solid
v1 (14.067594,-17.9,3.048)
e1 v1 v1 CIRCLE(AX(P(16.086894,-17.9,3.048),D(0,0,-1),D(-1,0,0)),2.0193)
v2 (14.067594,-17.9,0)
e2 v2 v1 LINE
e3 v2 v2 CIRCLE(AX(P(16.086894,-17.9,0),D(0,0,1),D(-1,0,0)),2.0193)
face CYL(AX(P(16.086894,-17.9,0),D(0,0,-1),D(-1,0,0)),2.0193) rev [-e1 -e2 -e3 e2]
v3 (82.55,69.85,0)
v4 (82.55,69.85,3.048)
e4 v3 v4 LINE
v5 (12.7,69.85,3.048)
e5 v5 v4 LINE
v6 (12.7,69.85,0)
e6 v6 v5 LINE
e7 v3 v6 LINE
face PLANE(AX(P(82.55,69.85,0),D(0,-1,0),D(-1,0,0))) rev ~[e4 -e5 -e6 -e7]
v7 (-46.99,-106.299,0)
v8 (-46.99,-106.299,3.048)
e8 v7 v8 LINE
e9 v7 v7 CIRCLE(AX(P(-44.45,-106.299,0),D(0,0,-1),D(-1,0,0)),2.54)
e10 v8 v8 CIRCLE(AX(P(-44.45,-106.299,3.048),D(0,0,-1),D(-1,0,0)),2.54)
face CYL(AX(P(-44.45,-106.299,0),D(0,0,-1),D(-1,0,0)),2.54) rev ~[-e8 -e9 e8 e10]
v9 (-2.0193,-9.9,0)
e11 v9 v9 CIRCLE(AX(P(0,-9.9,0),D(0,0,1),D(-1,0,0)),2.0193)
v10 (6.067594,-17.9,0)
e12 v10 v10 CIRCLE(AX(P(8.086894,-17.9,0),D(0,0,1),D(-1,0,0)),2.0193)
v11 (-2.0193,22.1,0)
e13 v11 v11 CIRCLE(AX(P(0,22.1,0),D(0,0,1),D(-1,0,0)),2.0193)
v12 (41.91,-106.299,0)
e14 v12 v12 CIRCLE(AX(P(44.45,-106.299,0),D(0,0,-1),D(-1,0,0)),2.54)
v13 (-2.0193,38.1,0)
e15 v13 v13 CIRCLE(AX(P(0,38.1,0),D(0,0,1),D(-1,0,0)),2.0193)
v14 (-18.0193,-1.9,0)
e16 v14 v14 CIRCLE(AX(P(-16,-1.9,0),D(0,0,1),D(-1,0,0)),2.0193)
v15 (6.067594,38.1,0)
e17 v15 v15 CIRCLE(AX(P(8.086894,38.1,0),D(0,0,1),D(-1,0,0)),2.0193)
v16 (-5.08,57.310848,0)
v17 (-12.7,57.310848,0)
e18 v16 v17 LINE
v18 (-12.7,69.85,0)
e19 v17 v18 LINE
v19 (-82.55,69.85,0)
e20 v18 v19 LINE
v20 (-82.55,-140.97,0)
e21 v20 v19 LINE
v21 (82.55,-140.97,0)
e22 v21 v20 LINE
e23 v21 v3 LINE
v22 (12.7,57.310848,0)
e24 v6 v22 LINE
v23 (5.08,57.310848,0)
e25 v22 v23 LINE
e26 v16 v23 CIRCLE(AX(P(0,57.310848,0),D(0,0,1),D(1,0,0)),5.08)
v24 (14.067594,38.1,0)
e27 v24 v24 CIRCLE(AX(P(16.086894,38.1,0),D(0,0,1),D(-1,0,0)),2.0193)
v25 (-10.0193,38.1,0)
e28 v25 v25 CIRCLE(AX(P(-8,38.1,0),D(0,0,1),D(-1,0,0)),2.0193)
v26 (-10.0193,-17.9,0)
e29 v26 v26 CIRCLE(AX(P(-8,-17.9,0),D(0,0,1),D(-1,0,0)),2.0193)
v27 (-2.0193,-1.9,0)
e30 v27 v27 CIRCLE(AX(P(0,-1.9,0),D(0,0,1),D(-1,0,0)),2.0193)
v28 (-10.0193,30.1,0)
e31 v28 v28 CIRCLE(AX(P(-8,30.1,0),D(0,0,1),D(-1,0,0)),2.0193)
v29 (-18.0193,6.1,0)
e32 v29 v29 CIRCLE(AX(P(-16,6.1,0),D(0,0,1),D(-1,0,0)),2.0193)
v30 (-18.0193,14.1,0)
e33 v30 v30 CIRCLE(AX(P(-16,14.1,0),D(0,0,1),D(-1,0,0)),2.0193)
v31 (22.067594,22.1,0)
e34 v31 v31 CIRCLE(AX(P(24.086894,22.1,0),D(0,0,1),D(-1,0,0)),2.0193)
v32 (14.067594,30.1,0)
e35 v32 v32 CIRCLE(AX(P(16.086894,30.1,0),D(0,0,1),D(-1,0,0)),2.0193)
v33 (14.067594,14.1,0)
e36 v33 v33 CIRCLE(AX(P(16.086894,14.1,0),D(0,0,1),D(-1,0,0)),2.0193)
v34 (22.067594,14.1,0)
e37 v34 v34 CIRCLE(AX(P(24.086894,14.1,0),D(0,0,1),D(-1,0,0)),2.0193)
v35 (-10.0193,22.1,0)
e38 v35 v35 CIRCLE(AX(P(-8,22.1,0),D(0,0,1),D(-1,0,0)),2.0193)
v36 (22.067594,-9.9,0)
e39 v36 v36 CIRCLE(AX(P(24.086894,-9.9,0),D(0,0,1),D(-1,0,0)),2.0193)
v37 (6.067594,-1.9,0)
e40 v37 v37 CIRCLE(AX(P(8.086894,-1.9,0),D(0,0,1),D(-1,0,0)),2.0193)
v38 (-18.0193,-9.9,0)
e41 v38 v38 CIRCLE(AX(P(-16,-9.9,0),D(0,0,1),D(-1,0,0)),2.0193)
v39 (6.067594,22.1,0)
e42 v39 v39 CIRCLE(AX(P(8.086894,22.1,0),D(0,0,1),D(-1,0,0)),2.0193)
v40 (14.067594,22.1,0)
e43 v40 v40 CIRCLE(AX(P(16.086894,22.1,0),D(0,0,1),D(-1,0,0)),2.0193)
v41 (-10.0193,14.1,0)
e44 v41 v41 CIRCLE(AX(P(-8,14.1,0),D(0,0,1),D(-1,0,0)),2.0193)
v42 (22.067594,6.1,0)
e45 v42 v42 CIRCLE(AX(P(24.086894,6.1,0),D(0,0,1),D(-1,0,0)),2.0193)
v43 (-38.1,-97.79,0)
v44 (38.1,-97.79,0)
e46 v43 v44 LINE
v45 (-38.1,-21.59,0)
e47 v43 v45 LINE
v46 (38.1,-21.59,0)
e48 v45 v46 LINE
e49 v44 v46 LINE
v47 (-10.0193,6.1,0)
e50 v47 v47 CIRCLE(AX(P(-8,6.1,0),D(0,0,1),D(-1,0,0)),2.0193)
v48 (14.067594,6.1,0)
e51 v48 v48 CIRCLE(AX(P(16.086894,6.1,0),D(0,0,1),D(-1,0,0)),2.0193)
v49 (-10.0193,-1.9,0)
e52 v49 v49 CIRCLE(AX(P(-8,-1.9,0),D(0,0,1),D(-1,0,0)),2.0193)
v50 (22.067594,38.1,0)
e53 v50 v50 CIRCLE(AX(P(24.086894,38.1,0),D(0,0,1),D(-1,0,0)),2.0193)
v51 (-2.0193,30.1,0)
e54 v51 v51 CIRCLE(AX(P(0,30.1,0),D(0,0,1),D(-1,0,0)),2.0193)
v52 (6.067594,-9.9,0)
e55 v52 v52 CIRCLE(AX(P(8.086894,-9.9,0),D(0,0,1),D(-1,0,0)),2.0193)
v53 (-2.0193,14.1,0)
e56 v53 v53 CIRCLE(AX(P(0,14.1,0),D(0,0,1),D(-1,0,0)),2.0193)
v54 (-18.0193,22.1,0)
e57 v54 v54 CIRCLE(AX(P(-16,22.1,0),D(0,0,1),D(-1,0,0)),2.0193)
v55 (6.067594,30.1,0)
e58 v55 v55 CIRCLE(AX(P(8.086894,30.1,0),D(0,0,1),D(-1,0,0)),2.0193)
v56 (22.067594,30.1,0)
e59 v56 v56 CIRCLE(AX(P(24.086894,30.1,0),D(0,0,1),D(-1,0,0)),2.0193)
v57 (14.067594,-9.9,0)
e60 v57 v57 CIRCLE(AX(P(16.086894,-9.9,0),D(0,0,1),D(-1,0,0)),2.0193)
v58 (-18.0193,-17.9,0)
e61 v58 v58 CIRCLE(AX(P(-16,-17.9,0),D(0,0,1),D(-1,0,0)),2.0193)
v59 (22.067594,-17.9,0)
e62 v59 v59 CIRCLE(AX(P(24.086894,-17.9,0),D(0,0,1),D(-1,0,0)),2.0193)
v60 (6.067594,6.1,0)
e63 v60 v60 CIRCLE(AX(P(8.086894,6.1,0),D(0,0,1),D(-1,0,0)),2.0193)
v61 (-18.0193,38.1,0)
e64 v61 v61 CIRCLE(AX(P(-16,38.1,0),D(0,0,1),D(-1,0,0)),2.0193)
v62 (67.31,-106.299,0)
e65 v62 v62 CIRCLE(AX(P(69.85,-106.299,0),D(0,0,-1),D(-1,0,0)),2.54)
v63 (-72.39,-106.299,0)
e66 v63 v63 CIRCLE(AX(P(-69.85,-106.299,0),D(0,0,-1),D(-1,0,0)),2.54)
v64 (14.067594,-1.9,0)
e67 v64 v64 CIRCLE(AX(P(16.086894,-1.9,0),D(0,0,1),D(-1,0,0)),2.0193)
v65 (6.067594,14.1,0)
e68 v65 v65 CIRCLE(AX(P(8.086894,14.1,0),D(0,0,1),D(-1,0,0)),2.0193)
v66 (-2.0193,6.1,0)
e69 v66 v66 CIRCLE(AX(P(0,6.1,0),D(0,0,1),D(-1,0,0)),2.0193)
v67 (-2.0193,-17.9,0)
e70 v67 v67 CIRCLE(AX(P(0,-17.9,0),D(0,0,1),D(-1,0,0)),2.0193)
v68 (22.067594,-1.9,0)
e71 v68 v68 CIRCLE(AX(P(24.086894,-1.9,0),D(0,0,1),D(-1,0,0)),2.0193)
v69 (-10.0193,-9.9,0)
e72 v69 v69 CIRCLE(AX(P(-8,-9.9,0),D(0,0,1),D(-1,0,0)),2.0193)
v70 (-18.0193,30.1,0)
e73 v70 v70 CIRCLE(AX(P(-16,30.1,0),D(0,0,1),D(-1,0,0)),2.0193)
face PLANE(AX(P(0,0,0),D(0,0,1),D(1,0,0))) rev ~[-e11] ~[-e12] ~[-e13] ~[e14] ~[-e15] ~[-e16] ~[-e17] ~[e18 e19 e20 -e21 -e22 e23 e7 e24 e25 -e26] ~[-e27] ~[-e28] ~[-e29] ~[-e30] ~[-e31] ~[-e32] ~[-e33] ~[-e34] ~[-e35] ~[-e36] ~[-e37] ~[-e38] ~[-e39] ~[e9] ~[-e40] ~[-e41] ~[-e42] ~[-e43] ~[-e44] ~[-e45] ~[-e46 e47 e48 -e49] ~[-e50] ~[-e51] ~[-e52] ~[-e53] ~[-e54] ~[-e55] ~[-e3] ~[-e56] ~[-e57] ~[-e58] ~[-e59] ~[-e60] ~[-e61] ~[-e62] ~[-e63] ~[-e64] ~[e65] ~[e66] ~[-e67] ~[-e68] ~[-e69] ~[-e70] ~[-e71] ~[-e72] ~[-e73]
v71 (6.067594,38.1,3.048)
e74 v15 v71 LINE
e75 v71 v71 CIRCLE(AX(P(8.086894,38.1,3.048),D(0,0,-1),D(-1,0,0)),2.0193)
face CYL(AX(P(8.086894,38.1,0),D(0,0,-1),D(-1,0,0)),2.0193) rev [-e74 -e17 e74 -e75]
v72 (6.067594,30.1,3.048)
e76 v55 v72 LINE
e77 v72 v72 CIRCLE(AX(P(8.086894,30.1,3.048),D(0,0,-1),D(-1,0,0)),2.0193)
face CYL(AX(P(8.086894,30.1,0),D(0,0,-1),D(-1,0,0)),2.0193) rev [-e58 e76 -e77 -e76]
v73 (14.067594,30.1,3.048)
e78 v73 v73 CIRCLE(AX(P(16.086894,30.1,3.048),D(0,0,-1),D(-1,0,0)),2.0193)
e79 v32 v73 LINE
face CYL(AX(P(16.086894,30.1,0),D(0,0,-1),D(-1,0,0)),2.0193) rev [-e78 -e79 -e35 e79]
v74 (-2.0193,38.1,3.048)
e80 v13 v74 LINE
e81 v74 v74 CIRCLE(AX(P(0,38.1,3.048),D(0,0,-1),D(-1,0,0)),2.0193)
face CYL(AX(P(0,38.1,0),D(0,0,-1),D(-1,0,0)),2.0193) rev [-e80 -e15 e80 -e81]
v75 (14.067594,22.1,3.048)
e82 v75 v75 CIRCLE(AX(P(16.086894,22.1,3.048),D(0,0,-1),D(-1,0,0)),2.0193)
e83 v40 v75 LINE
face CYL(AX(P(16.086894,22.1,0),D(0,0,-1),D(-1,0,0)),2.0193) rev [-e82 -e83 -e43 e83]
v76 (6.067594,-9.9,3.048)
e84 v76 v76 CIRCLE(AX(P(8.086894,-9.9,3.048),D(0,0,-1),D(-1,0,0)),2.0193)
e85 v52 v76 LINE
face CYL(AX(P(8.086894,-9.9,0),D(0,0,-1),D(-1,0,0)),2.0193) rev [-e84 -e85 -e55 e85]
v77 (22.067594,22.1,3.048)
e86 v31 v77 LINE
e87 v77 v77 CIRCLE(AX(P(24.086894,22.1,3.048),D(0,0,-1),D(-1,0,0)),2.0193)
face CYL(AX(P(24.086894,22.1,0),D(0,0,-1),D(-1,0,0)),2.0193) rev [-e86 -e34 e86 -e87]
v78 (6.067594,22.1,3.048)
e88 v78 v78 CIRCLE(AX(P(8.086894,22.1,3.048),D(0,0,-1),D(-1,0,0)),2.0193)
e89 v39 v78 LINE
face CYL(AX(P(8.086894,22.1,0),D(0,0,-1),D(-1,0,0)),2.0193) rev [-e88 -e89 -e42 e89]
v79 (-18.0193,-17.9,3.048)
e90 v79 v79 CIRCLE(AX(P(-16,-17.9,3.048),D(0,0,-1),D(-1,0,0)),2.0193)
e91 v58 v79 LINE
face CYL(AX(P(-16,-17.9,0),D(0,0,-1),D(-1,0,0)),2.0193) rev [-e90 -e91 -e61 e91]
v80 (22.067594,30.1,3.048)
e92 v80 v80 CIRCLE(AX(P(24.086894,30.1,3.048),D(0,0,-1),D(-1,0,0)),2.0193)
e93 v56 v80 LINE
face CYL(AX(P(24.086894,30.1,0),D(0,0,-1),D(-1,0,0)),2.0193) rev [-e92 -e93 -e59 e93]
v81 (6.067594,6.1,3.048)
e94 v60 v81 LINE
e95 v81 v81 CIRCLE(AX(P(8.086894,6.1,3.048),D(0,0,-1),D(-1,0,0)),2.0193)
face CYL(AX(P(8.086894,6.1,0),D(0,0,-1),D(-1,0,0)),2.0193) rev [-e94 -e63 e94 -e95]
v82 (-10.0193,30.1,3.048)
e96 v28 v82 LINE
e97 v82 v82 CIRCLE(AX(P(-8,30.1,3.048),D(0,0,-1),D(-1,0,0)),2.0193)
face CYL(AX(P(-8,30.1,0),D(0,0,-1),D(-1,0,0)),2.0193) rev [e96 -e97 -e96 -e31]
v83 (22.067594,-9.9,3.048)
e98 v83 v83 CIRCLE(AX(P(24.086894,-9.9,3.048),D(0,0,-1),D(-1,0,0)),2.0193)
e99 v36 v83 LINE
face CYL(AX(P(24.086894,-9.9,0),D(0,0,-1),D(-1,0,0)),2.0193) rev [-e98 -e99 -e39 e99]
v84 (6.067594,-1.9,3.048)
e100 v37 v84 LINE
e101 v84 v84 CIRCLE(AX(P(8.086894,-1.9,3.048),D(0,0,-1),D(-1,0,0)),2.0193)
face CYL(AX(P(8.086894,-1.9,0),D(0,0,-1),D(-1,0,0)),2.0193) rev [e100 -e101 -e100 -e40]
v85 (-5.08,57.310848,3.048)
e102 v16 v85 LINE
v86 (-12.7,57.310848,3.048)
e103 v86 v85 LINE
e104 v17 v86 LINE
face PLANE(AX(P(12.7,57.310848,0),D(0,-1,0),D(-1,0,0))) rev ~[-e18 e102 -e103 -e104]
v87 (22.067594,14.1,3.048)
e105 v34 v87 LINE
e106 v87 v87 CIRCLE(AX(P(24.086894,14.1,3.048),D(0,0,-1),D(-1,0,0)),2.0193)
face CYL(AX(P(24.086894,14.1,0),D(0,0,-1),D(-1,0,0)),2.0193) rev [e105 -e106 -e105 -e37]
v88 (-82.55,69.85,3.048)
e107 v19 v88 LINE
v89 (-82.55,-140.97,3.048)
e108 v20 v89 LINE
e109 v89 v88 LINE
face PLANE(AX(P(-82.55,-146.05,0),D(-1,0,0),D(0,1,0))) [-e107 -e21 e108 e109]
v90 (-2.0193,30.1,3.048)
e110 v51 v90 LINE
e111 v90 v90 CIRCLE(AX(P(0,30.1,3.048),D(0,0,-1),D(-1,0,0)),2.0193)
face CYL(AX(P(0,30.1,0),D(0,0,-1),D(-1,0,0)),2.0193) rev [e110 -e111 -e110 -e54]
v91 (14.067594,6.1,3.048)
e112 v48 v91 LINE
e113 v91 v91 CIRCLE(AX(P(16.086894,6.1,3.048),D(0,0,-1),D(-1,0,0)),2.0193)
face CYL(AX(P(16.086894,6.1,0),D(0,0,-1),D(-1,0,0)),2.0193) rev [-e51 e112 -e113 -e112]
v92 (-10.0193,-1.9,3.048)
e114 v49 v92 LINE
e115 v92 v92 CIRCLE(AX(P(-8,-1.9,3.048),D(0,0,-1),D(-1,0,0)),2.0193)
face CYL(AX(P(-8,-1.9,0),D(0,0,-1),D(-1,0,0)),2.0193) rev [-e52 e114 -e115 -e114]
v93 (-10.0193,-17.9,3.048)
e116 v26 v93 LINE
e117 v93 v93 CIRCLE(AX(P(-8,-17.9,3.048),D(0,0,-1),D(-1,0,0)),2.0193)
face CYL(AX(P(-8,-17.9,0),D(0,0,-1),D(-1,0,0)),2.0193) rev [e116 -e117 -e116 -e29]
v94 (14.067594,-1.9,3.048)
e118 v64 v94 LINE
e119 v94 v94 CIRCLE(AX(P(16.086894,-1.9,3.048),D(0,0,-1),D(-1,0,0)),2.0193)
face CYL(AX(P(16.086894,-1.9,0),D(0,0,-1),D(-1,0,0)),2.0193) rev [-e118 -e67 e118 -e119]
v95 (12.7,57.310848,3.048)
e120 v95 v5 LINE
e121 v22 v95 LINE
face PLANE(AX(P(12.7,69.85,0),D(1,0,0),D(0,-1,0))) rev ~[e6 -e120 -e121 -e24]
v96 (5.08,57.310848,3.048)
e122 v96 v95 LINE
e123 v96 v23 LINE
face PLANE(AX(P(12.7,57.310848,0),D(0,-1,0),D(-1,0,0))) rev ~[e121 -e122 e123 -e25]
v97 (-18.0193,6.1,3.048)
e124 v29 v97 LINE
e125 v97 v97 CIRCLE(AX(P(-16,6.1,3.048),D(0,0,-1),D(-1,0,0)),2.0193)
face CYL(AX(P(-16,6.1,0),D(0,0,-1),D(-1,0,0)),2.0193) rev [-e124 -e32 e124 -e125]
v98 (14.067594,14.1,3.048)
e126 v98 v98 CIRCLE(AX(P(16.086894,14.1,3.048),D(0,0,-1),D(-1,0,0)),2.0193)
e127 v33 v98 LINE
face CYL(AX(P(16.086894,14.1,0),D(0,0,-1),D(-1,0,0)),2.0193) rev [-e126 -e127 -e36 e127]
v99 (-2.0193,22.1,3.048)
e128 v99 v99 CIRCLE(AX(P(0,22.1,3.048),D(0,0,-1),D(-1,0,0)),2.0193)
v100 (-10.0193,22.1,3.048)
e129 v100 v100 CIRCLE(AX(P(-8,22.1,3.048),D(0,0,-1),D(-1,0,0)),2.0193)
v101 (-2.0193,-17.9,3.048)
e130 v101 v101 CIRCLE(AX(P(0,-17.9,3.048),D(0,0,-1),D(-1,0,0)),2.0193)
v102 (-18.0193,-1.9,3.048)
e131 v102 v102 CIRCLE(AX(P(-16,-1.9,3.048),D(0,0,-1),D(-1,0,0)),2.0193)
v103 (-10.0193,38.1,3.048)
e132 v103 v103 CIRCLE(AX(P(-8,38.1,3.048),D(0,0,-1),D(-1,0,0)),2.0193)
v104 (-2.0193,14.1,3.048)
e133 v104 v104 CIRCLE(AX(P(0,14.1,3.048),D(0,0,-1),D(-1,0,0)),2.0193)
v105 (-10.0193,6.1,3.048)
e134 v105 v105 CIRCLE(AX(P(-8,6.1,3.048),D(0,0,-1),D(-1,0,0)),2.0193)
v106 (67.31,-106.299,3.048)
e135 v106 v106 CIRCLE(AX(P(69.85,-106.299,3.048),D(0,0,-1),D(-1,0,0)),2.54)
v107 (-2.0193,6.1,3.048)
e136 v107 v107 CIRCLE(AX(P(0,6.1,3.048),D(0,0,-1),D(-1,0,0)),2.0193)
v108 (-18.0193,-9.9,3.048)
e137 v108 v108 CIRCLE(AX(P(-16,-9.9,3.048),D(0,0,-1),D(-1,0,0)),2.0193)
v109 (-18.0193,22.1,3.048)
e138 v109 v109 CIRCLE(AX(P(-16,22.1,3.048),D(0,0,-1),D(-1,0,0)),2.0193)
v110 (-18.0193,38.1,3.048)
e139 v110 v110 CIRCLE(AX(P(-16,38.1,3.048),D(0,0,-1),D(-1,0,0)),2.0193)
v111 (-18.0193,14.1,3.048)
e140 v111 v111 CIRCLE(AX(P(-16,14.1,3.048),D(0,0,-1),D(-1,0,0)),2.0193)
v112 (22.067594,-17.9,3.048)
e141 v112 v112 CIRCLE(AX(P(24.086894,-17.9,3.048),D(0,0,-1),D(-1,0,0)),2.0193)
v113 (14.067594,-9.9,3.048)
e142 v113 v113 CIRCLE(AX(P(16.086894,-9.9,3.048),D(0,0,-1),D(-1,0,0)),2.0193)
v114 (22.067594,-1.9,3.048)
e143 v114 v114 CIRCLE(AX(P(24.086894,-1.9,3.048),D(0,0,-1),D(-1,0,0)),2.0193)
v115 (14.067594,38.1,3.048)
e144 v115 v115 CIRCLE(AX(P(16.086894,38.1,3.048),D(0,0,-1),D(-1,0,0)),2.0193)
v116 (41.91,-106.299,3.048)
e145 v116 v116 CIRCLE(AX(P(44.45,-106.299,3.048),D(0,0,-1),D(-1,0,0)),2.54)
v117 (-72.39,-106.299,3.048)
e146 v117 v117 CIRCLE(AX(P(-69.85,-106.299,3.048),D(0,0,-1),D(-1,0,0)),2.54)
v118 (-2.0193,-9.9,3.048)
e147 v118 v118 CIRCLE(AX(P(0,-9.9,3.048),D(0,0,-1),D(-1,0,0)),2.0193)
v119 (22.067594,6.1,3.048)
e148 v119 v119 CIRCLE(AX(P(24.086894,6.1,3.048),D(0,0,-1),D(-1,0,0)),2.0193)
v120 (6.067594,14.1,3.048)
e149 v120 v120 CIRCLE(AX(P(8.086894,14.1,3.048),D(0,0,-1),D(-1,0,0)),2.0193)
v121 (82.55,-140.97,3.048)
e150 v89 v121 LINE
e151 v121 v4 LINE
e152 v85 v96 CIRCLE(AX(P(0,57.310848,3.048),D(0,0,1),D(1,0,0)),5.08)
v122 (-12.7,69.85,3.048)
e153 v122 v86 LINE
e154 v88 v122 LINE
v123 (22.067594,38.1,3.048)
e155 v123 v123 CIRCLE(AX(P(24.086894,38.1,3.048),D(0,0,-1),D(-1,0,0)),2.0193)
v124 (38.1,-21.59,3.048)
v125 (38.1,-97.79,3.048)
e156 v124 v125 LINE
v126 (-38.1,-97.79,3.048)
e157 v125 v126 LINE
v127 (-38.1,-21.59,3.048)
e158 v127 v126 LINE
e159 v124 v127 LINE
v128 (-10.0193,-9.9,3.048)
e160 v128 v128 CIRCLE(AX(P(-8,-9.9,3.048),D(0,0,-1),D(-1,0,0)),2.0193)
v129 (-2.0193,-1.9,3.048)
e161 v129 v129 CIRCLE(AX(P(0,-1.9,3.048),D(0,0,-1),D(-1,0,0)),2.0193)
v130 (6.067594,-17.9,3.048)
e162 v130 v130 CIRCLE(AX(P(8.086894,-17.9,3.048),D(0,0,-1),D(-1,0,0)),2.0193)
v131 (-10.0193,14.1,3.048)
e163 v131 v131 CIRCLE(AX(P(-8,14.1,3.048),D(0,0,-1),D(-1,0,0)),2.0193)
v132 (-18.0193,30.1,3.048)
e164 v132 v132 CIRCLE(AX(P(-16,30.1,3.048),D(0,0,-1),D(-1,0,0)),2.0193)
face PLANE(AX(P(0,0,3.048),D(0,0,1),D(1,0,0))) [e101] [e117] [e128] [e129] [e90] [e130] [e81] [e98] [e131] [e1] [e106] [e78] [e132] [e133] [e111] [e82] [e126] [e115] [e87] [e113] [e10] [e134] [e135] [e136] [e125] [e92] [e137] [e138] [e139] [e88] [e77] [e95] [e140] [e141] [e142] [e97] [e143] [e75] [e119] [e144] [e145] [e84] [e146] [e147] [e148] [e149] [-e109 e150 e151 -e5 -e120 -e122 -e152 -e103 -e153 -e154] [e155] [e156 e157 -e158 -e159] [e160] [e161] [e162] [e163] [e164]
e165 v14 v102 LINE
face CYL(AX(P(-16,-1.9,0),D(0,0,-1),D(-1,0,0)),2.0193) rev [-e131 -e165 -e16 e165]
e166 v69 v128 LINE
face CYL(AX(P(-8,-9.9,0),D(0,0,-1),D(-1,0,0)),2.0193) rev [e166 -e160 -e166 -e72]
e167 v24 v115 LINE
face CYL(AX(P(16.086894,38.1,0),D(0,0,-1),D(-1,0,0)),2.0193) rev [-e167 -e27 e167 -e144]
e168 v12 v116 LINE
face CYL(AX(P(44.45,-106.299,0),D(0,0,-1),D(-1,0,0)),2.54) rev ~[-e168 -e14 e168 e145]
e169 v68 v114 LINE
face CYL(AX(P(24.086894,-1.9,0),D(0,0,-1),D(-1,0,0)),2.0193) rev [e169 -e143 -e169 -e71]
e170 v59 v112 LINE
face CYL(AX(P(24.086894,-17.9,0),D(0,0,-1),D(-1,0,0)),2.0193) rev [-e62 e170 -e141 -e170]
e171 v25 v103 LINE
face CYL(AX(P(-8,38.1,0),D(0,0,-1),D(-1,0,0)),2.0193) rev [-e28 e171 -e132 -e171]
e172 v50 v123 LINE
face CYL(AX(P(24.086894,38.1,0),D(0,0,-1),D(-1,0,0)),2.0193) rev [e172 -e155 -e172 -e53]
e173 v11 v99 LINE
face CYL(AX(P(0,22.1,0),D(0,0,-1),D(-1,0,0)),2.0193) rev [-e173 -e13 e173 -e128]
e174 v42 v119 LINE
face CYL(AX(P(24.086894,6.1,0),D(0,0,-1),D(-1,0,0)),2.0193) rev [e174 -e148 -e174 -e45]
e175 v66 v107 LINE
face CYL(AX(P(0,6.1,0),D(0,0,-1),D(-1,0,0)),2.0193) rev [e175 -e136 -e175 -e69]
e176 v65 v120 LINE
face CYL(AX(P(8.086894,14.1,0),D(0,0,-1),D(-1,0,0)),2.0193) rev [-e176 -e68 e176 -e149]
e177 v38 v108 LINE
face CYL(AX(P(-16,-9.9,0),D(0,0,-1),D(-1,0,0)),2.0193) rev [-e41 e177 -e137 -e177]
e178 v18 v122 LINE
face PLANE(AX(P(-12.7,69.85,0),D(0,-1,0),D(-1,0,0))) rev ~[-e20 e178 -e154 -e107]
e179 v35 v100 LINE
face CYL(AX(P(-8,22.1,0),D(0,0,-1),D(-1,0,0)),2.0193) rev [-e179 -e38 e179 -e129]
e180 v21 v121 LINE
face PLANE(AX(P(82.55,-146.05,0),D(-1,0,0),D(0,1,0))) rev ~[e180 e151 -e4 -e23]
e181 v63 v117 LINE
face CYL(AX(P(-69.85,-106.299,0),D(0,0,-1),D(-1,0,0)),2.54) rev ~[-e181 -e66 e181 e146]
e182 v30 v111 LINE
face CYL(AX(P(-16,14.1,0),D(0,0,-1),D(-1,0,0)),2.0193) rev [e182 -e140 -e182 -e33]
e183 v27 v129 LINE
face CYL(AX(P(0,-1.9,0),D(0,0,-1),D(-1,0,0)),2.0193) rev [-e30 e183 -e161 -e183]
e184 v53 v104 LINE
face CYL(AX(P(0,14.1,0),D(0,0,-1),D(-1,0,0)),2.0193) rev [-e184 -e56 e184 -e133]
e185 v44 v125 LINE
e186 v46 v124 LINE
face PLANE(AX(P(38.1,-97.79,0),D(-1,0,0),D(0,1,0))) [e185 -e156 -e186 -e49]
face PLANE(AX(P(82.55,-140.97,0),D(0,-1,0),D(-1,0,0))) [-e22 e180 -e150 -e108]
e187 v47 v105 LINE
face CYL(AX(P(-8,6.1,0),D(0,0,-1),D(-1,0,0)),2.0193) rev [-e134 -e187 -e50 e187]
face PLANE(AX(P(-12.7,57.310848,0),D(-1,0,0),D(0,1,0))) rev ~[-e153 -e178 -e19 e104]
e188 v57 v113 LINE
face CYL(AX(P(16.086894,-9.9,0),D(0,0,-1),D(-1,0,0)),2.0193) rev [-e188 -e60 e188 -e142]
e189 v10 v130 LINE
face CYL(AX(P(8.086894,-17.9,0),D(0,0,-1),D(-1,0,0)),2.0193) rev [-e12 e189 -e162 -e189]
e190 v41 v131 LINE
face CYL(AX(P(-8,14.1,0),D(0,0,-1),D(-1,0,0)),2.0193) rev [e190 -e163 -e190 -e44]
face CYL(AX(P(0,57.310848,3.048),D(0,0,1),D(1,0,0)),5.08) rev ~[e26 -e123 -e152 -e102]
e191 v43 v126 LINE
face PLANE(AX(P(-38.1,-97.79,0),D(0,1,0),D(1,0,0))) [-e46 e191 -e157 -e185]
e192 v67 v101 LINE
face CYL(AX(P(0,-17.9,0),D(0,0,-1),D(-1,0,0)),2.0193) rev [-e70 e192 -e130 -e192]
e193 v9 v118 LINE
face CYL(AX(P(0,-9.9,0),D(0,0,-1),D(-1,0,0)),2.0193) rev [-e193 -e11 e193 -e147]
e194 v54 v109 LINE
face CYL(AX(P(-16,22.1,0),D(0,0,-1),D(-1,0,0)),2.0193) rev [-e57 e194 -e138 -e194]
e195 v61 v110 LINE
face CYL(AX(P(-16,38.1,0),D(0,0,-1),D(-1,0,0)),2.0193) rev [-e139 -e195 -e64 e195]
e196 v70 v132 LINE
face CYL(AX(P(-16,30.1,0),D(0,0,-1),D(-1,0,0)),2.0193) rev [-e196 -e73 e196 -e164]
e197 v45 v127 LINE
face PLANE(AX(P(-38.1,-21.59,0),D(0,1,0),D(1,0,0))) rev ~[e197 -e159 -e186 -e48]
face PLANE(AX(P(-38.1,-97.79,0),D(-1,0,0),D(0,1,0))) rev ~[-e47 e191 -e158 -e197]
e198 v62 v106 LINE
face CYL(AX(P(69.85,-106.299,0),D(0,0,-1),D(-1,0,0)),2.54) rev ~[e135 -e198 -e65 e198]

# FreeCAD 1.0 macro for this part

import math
import FreeCAD as App
import Part
import Sketcher
Q = App.Units.Quantity


def add_polygon(sketch, points):
    """Adds a closed chain of lines whose ends are joined by coincident constraints."""
    first, n = sketch.GeometryCount, len(points)
    for a, b in zip(points, points[1:] + points[:1]):
        sketch.addGeometry(Part.LineSegment(App.Vector(*a, 0), App.Vector(*b, 0)), False)
    for i in range(n):
        sketch.addConstraint(Sketcher.Constraint("Coincident", first + i, 2, first + (i + 1) % n, 1))

doc = App.newDocument("Part")
params = doc.addObject("Spreadsheet::Sheet", "Params")
for row, (alias, value) in enumerate([
    ("sketch1_width", "6.5 in"),
    ("sketch1_height", "11.5 in"),
    ("pad1_length", "0.12 in"),
    ("sketch2_width", "3 in"),
    ("sketch2_diameter", "0.159 in"),
    ("sketch3_width", "1 in"),
    ("sketch3_height", "3 in"),
    ("sketch3_width2", "6.5 in"),
    ("sketch4_diameter", "0.2 in"),
    ("sketch5_width", "6.5 in"),
    ("sketch5_height", "0.2 in"),
    ("sketch6_diameter", "0.4 in"),
], start=1):
    params.set(f"A{row}", alias)
    params.set(f"B{row}", "=" + value)
    params.setAlias(f"B{row}", alias)

body = doc.addObject("PartDesign::Body", "Body")

# Sketch on XY plane
sketch1 = body.newObject("Sketcher::SketchObject", "Sketch")
sketch1.AttachmentSupport = (doc.getObject("XY_Plane"), [""])
sketch1.MapMode = "FlatFace"
add_polygon(sketch1, [(-82.55, 146.05), (-82.55, -146.05), (82.55, -146.05), (82.55, 146.05)])  # lines 0-3
sketch1.addConstraint(Sketcher.Constraint("Vertical", 0))
sketch1.addConstraint(Sketcher.Constraint("Horizontal", 1))
sketch1.addConstraint(Sketcher.Constraint("Vertical", 2))
sketch1.addConstraint(Sketcher.Constraint("Horizontal", 3))
sketch1.addConstraint(Sketcher.Constraint("Symmetric", 0, 2, 2, 2, -1, 1))
sketch1.addConstraint(Sketcher.Constraint("DistanceX", 1, 1, 1, 2, Q("6.5 in")))
sketch1.addConstraint(Sketcher.Constraint("DistanceY", 0, 2, 0, 1, Q("11.5 in")))
sketch1.setExpression("Constraints[9]", "Params.sketch1_width")
sketch1.setExpression("Constraints[10]", "Params.sketch1_height")
pad1 = body.newObject("PartDesign::Pad", "Pad")
pad1.Profile = sketch1
pad1.setExpression("Length", "Params.pad1_length")

# Sketch on XY plane
sketch2 = body.newObject("Sketcher::SketchObject", "Sketch001")
sketch2.AttachmentSupport = (doc.getObject("XY_Plane"), [""])
sketch2.MapMode = "FlatFace"
sketch2.addGeometry(Part.ArcOfCircle(Part.Circle(App.Vector(0, 92.71, 0), App.Vector(0, 0, 1), 10.7315), math.radians(-41.099767), math.radians(41.099767)), False)  # 0
sketch2.addGeometry(Part.LineSegment(App.Vector(8.086894, 99.76459, 0), App.Vector(8.086894, 109.0549, 0)), False)  # 1
sketch2.addGeometry(Part.LineSegment(App.Vector(8.086894, 109.0549, 0), App.Vector(-8.086894, 109.0549, 0)), False)  # 2
sketch2.addGeometry(Part.LineSegment(App.Vector(-8.086894, 109.0549, 0), App.Vector(-8.086894, 99.76459, 0)), False)  # 3
sketch2.addGeometry(Part.ArcOfCircle(Part.Circle(App.Vector(0, 92.71, 0), App.Vector(0, 0, 1), 10.7315), math.radians(138.900233), math.radians(221.099767)), False)  # 4
sketch2.addGeometry(Part.LineSegment(App.Vector(-8.086894, 85.65541, 0), App.Vector(-8.086894, 76.3651, 0)), False)  # 5
sketch2.addGeometry(Part.LineSegment(App.Vector(-8.086894, 76.3651, 0), App.Vector(8.086894, 76.3651, 0)), False)  # 6
sketch2.addGeometry(Part.LineSegment(App.Vector(8.086894, 76.3651, 0), App.Vector(8.086894, 85.65541, 0)), False)  # 7
sketch2.addGeometry(Part.Circle(App.Vector(0, 38.1, 0), App.Vector(0, 0, 1), 2.0193), False)  # 8
sketch2.addGeometry(Part.Circle(App.Vector(0, 30.1, 0), App.Vector(0, 0, 1), 2.0193), False)  # 9
sketch2.addGeometry(Part.Circle(App.Vector(0, 22.1, 0), App.Vector(0, 0, 1), 2.0193), False)  # 10
sketch2.addGeometry(Part.Circle(App.Vector(0, 14.1, 0), App.Vector(0, 0, 1), 2.0193), False)  # 11
sketch2.addGeometry(Part.Circle(App.Vector(0, 6.1, 0), App.Vector(0, 0, 1), 2.0193), False)  # 12
sketch2.addGeometry(Part.Circle(App.Vector(0, -1.9, 0), App.Vector(0, 0, 1), 2.0193), False)  # 13
sketch2.addGeometry(Part.Circle(App.Vector(0, -9.9, 0), App.Vector(0, 0, 1), 2.0193), False)  # 14
sketch2.addGeometry(Part.Circle(App.Vector(0, -17.9, 0), App.Vector(0, 0, 1), 2.0193), False)  # 15
sketch2.addGeometry(Part.Circle(App.Vector(-8, 38.1, 0), App.Vector(0, 0, 1), 2.0193), False)  # 16
sketch2.addGeometry(Part.Circle(App.Vector(-16, 38.1, 0), App.Vector(0, 0, 1), 2.0193), False)  # 17
sketch2.addGeometry(Part.Circle(App.Vector(-8, 30.1, 0), App.Vector(0, 0, 1), 2.0193), False)  # 18
sketch2.addGeometry(Part.Circle(App.Vector(-16, 30.1, 0), App.Vector(0, 0, 1), 2.0193), False)  # 19
sketch2.addGeometry(Part.Circle(App.Vector(-8, 22.1, 0), App.Vector(0, 0, 1), 2.0193), False)  # 20
sketch2.addGeometry(Part.Circle(App.Vector(-16, 22.1, 0), App.Vector(0, 0, 1), 2.0193), False)  # 21
sketch2.addGeometry(Part.Circle(App.Vector(-8, 14.1, 0), App.Vector(0, 0, 1), 2.0193), False)  # 22
sketch2.addGeometry(Part.Circle(App.Vector(-16, 14.1, 0), App.Vector(0, 0, 1), 2.0193), False)  # 23
sketch2.addGeometry(Part.Circle(App.Vector(-8, 6.1, 0), App.Vector(0, 0, 1), 2.0193), False)  # 24
sketch2.addGeometry(Part.Circle(App.Vector(-16, 6.1, 0), App.Vector(0, 0, 1), 2.0193), False)  # 25
sketch2.addGeometry(Part.Circle(App.Vector(-8, -1.9, 0), App.Vector(0, 0, 1), 2.0193), False)  # 26
sketch2.addGeometry(Part.Circle(App.Vector(-16, -1.9, 0), App.Vector(0, 0, 1), 2.0193), False)  # 27
sketch2.addGeometry(Part.Circle(App.Vector(-8, -9.9, 0), App.Vector(0, 0, 1), 2.0193), False)  # 28
sketch2.addGeometry(Part.Circle(App.Vector(-16, -9.9, 0), App.Vector(0, 0, 1), 2.0193), False)  # 29
sketch2.addGeometry(Part.Circle(App.Vector(-8, -17.9, 0), App.Vector(0, 0, 1), 2.0193), False)  # 30
sketch2.addGeometry(Part.Circle(App.Vector(-16, -17.9, 0), App.Vector(0, 0, 1), 2.0193), False)  # 31
sketch2.addGeometry(Part.Circle(App.Vector(24.086894, 14.1, 0), App.Vector(0, 0, 1), 2.0193), False)  # 32
sketch2.addGeometry(Part.Circle(App.Vector(8.086894, 14.1, 0), App.Vector(0, 0, 1), 2.0193), False)  # 33
sketch2.addGeometry(Part.Circle(App.Vector(8.086894, -17.9, 0), App.Vector(0, 0, 1), 2.0193), False)  # 34
sketch2.addGeometry(Part.Circle(App.Vector(24.086894, 6.1, 0), App.Vector(0, 0, 1), 2.0193), False)  # 35
sketch2.addGeometry(Part.Circle(App.Vector(16.086894, 6.1, 0), App.Vector(0, 0, 1), 2.0193), False)  # 36
sketch2.addGeometry(Part.Circle(App.Vector(8.086894, -1.9, 0), App.Vector(0, 0, 1), 2.0193), False)  # 37
sketch2.addGeometry(Part.Circle(App.Vector(8.086894, 30.1, 0), App.Vector(0, 0, 1), 2.0193), False)  # 38
sketch2.addGeometry(Part.Circle(App.Vector(24.086894, 22.1, 0), App.Vector(0, 0, 1), 2.0193), False)  # 39
sketch2.addGeometry(Part.Circle(App.Vector(24.086894, -1.9, 0), App.Vector(0, 0, 1), 2.0193), False)  # 40
sketch2.addGeometry(Part.Circle(App.Vector(24.086894, -9.9, 0), App.Vector(0, 0, 1), 2.0193), False)  # 41
sketch2.addGeometry(Part.Circle(App.Vector(8.086894, 6.1, 0), App.Vector(0, 0, 1), 2.0193), False)  # 42
sketch2.addGeometry(Part.Circle(App.Vector(16.086894, 22.1, 0), App.Vector(0, 0, 1), 2.0193), False)  # 43
sketch2.addGeometry(Part.Circle(App.Vector(8.086894, 22.1, 0), App.Vector(0, 0, 1), 2.0193), False)  # 44
sketch2.addGeometry(Part.Circle(App.Vector(8.086894, -9.9, 0), App.Vector(0, 0, 1), 2.0193), False)  # 45
sketch2.addGeometry(Part.Circle(App.Vector(24.086894, -17.9, 0), App.Vector(0, 0, 1), 2.0193), False)  # 46
sketch2.addGeometry(Part.Circle(App.Vector(16.086894, 14.1, 0), App.Vector(0, 0, 1), 2.0193), False)  # 47
sketch2.addGeometry(Part.Circle(App.Vector(16.086894, -17.9, 0), App.Vector(0, 0, 1), 2.0193), False)  # 48
sketch2.addGeometry(Part.Circle(App.Vector(16.086894, 30.1, 0), App.Vector(0, 0, 1), 2.0193), False)  # 49
sketch2.addGeometry(Part.Circle(App.Vector(24.086894, 30.1, 0), App.Vector(0, 0, 1), 2.0193), False)  # 50
sketch2.addGeometry(Part.Circle(App.Vector(16.086894, -9.9, 0), App.Vector(0, 0, 1), 2.0193), False)  # 51
sketch2.addGeometry(Part.Circle(App.Vector(16.086894, -1.9, 0), App.Vector(0, 0, 1), 2.0193), False)  # 52
sketch2.addGeometry(Part.Circle(App.Vector(16.086894, 38.1, 0), App.Vector(0, 0, 1), 2.0193), False)  # 53
sketch2.addGeometry(Part.Circle(App.Vector(8.086894, 38.1, 0), App.Vector(0, 0, 1), 2.0193), False)  # 54
sketch2.addGeometry(Part.Circle(App.Vector(24.086894, 38.1, 0), App.Vector(0, 0, 1), 2.0193), False)  # 55
add_polygon(sketch2, [(-38.1, -21.59), (-38.1, -97.79), (38.1, -97.79), (38.1, -21.59)])  # lines 56-59
sketch2.addConstraint(Sketcher.Constraint("Coincident", 0, 2, 1, 1))
sketch2.addConstraint(Sketcher.Constraint("Coincident", 1, 2, 2, 1))
sketch2.addConstraint(Sketcher.Constraint("Coincident", 2, 2, 3, 1))
sketch2.addConstraint(Sketcher.Constraint("Coincident", 3, 2, 4, 1))
sketch2.addConstraint(Sketcher.Constraint("Coincident", 4, 2, 5, 1))
sketch2.addConstraint(Sketcher.Constraint("Coincident", 5, 2, 6, 1))
sketch2.addConstraint(Sketcher.Constraint("Coincident", 6, 2, 7, 1))
sketch2.addConstraint(Sketcher.Constraint("Coincident", 7, 2, 0, 1))
sketch2.addConstraint(Sketcher.Constraint("Vertical", 1))
sketch2.addConstraint(Sketcher.Constraint("Horizontal", 2))
sketch2.addConstraint(Sketcher.Constraint("Vertical", 3))
sketch2.addConstraint(Sketcher.Constraint("Vertical", 5))
sketch2.addConstraint(Sketcher.Constraint("Horizontal", 6))
sketch2.addConstraint(Sketcher.Constraint("Vertical", 7))
sketch2.addConstraint(Sketcher.Constraint("Vertical", 56))
sketch2.addConstraint(Sketcher.Constraint("Horizontal", 57))
sketch2.addConstraint(Sketcher.Constraint("Vertical", 58))
sketch2.addConstraint(Sketcher.Constraint("Horizontal", 59))
sketch2.addConstraint(Sketcher.Constraint("Coincident", 4, 3, 0, 3))
sketch2.addConstraint(Sketcher.Constraint("Equal", 0, 4))
sketch2.addConstraint(Sketcher.Constraint("Equal", 8, 9))
sketch2.addConstraint(Sketcher.Constraint("Equal", 9, 10))
sketch2.addConstraint(Sketcher.Constraint("Equal", 10, 11))
sketch2.addConstraint(Sketcher.Constraint("Equal", 11, 12))
sketch2.addConstraint(Sketcher.Constraint("Equal", 12, 13))
sketch2.addConstraint(Sketcher.Constraint("Equal", 13, 14))
sketch2.addConstraint(Sketcher.Constraint("Equal", 14, 15))
sketch2.addConstraint(Sketcher.Constraint("Equal", 15, 16))
sketch2.addConstraint(Sketcher.Constraint("Equal", 16, 17))
sketch2.addConstraint(Sketcher.Constraint("Equal", 17, 18))
sketch2.addConstraint(Sketcher.Constraint("Equal", 18, 19))
sketch2.addConstraint(Sketcher.Constraint("Equal", 19, 20))
sketch2.addConstraint(Sketcher.Constraint("Equal", 20, 21))
sketch2.addConstraint(Sketcher.Constraint("Equal", 21, 22))
sketch2.addConstraint(Sketcher.Constraint("Equal", 22, 23))
sketch2.addConstraint(Sketcher.Constraint("Equal", 23, 24))
sketch2.addConstraint(Sketcher.Constraint("Equal", 24, 25))
sketch2.addConstraint(Sketcher.Constraint("Equal", 25, 26))
sketch2.addConstraint(Sketcher.Constraint("Equal", 26, 27))
sketch2.addConstraint(Sketcher.Constraint("Equal", 27, 28))
sketch2.addConstraint(Sketcher.Constraint("Equal", 28, 29))
sketch2.addConstraint(Sketcher.Constraint("Equal", 29, 30))
sketch2.addConstraint(Sketcher.Constraint("Equal", 30, 31))
sketch2.addConstraint(Sketcher.Constraint("Equal", 31, 32))
sketch2.addConstraint(Sketcher.Constraint("Equal", 32, 33))
sketch2.addConstraint(Sketcher.Constraint("Equal", 33, 34))
sketch2.addConstraint(Sketcher.Constraint("Equal", 34, 35))
sketch2.addConstraint(Sketcher.Constraint("Equal", 35, 36))
sketch2.addConstraint(Sketcher.Constraint("Equal", 36, 37))
sketch2.addConstraint(Sketcher.Constraint("Equal", 37, 38))
sketch2.addConstraint(Sketcher.Constraint("Equal", 38, 39))
sketch2.addConstraint(Sketcher.Constraint("Equal", 39, 40))
sketch2.addConstraint(Sketcher.Constraint("Equal", 40, 41))
sketch2.addConstraint(Sketcher.Constraint("Equal", 41, 42))
sketch2.addConstraint(Sketcher.Constraint("Equal", 42, 43))
sketch2.addConstraint(Sketcher.Constraint("Equal", 43, 44))
sketch2.addConstraint(Sketcher.Constraint("Equal", 44, 45))
sketch2.addConstraint(Sketcher.Constraint("Equal", 45, 46))
sketch2.addConstraint(Sketcher.Constraint("Equal", 46, 47))
sketch2.addConstraint(Sketcher.Constraint("Equal", 47, 48))
sketch2.addConstraint(Sketcher.Constraint("Equal", 48, 49))
sketch2.addConstraint(Sketcher.Constraint("Equal", 49, 50))
sketch2.addConstraint(Sketcher.Constraint("Equal", 50, 51))
sketch2.addConstraint(Sketcher.Constraint("Equal", 51, 52))
sketch2.addConstraint(Sketcher.Constraint("Equal", 52, 53))
sketch2.addConstraint(Sketcher.Constraint("Equal", 53, 54))
sketch2.addConstraint(Sketcher.Constraint("Equal", 54, 55))
sketch2.addConstraint(Sketcher.Constraint("Symmetric", 0, 2, 3, 2, -2))
sketch2.addConstraint(Sketcher.Constraint("PointOnObject", 8, 3, -2))
sketch2.addConstraint(Sketcher.Constraint("PointOnObject", 9, 3, -2))
sketch2.addConstraint(Sketcher.Constraint("PointOnObject", 10, 3, -2))
sketch2.addConstraint(Sketcher.Constraint("PointOnObject", 11, 3, -2))
sketch2.addConstraint(Sketcher.Constraint("PointOnObject", 12, 3, -2))
sketch2.addConstraint(Sketcher.Constraint("PointOnObject", 13, 3, -2))
sketch2.addConstraint(Sketcher.Constraint("PointOnObject", 14, 3, -2))
sketch2.addConstraint(Sketcher.Constraint("PointOnObject", 15, 3, -2))
sketch2.addConstraint(Sketcher.Constraint("Horizontal", 8, 3, 16, 3))
sketch2.addConstraint(Sketcher.Constraint("Horizontal", 16, 3, 17, 3))
sketch2.addConstraint(Sketcher.Constraint("Horizontal", 9, 3, 18, 3))
sketch2.addConstraint(Sketcher.Constraint("Horizontal", 18, 3, 19, 3))
sketch2.addConstraint(Sketcher.Constraint("Horizontal", 10, 3, 20, 3))
sketch2.addConstraint(Sketcher.Constraint("Horizontal", 20, 3, 21, 3))
sketch2.addConstraint(Sketcher.Constraint("Horizontal", 11, 3, 22, 3))
sketch2.addConstraint(Sketcher.Constraint("Horizontal", 22, 3, 23, 3))
sketch2.addConstraint(Sketcher.Constraint("Horizontal", 12, 3, 24, 3))
sketch2.addConstraint(Sketcher.Constraint("Horizontal", 24, 3, 25, 3))
sketch2.addConstraint(Sketcher.Constraint("Horizontal", 13, 3, 26, 3))
sketch2.addConstraint(Sketcher.Constraint("Horizontal", 26, 3, 27, 3))
sketch2.addConstraint(Sketcher.Constraint("Horizontal", 14, 3, 28, 3))
sketch2.addConstraint(Sketcher.Constraint("Horizontal", 28, 3, 29, 3))
sketch2.addConstraint(Sketcher.Constraint("Horizontal", 15, 3, 30, 3))
sketch2.addConstraint(Sketcher.Constraint("Horizontal", 30, 3, 31, 3))
sketch2.addConstraint(Sketcher.Constraint("Horizontal", 23, 3, 32, 3))
sketch2.addConstraint(Sketcher.Constraint("Horizontal", 32, 3, 33, 3))
sketch2.addConstraint(Sketcher.Constraint("Horizontal", 31, 3, 34, 3))
sketch2.addConstraint(Sketcher.Constraint("Horizontal", 25, 3, 35, 3))
sketch2.addConstraint(Sketcher.Constraint("Horizontal", 35, 3, 36, 3))
sketch2.addConstraint(Sketcher.Constraint("Horizontal", 27, 3, 37, 3))
sketch2.addConstraint(Sketcher.Constraint("Horizontal", 19, 3, 38, 3))
sketch2.addConstraint(Sketcher.Constraint("Horizontal", 21, 3, 39, 3))
sketch2.addConstraint(Sketcher.Constraint("Horizontal", 37, 3, 40, 3))
sketch2.addConstraint(Sketcher.Constraint("Horizontal", 29, 3, 41, 3))
sketch2.addConstraint(Sketcher.Constraint("Horizontal", 36, 3, 42, 3))
sketch2.addConstraint(Sketcher.Constraint("Horizontal", 39, 3, 43, 3))
sketch2.addConstraint(Sketcher.Constraint("Horizontal", 43, 3, 44, 3))
sketch2.addConstraint(Sketcher.Constraint("Horizontal", 41, 3, 45, 3))
sketch2.addConstraint(Sketcher.Constraint("Horizontal", 34, 3, 46, 3))
sketch2.addConstraint(Sketcher.Constraint("Horizontal", 33, 3, 47, 3))
sketch2.addConstraint(Sketcher.Constraint("Horizontal", 46, 3, 48, 3))
sketch2.addConstraint(Sketcher.Constraint("Horizontal", 38, 3, 49, 3))
sketch2.addConstraint(Sketcher.Constraint("Horizontal", 49, 3, 50, 3))
sketch2.addConstraint(Sketcher.Constraint("Horizontal", 45, 3, 51, 3))
sketch2.addConstraint(Sketcher.Constraint("Horizontal", 40, 3, 52, 3))
sketch2.addConstraint(Sketcher.Constraint("Horizontal", 17, 3, 53, 3))
sketch2.addConstraint(Sketcher.Constraint("Horizontal", 53, 3, 54, 3))
sketch2.addConstraint(Sketcher.Constraint("Horizontal", 54, 3, 55, 3))
sketch2.addConstraint(Sketcher.Constraint("Horizontal", 4, 2, 7, 2))
sketch2.addConstraint(Sketcher.Constraint("Vertical", 16, 3, 18, 3))
sketch2.addConstraint(Sketcher.Constraint("Vertical", 17, 3, 19, 3))
sketch2.addConstraint(Sketcher.Constraint("Vertical", 18, 3, 20, 3))
sketch2.addConstraint(Sketcher.Constraint("Vertical", 19, 3, 21, 3))
sketch2.addConstraint(Sketcher.Constraint("Vertical", 20, 3, 22, 3))
sketch2.addConstraint(Sketcher.Constraint("Vertical", 21, 3, 23, 3))
sketch2.addConstraint(Sketcher.Constraint("Vertical", 22, 3, 24, 3))
sketch2.addConstraint(Sketcher.Constraint("Vertical", 23, 3, 25, 3))
sketch2.addConstraint(Sketcher.Constraint("Vertical", 24, 3, 26, 3))
sketch2.addConstraint(Sketcher.Constraint("Vertical", 25, 3, 27, 3))
sketch2.addConstraint(Sketcher.Constraint("Vertical", 26, 3, 28, 3))
sketch2.addConstraint(Sketcher.Constraint("Vertical", 27, 3, 29, 3))
sketch2.addConstraint(Sketcher.Constraint("Vertical", 28, 3, 30, 3))
sketch2.addConstraint(Sketcher.Constraint("Vertical", 29, 3, 31, 3))
sketch2.addConstraint(Sketcher.Constraint("Vertical", 33, 3, 34, 3))
sketch2.addConstraint(Sketcher.Constraint("Vertical", 32, 3, 35, 3))
sketch2.addConstraint(Sketcher.Constraint("Vertical", 34, 3, 37, 3))
sketch2.addConstraint(Sketcher.Constraint("Vertical", 37, 3, 38, 3))
sketch2.addConstraint(Sketcher.Constraint("Vertical", 35, 3, 39, 3))
sketch2.addConstraint(Sketcher.Constraint("Vertical", 39, 3, 40, 3))
sketch2.addConstraint(Sketcher.Constraint("Vertical", 40, 3, 41, 3))
sketch2.addConstraint(Sketcher.Constraint("Vertical", 38, 3, 42, 3))
sketch2.addConstraint(Sketcher.Constraint("Vertical", 36, 3, 43, 3))
sketch2.addConstraint(Sketcher.Constraint("Vertical", 42, 3, 44, 3))
sketch2.addConstraint(Sketcher.Constraint("Vertical", 44, 3, 45, 3))
sketch2.addConstraint(Sketcher.Constraint("Vertical", 41, 3, 46, 3))
sketch2.addConstraint(Sketcher.Constraint("Vertical", 43, 3, 47, 3))
sketch2.addConstraint(Sketcher.Constraint("Vertical", 47, 3, 48, 3))
sketch2.addConstraint(Sketcher.Constraint("Vertical", 48, 3, 49, 3))
sketch2.addConstraint(Sketcher.Constraint("Vertical", 46, 3, 50, 3))
sketch2.addConstraint(Sketcher.Constraint("Vertical", 49, 3, 51, 3))
sketch2.addConstraint(Sketcher.Constraint("Vertical", 51, 3, 52, 3))
sketch2.addConstraint(Sketcher.Constraint("Vertical", 52, 3, 53, 3))
sketch2.addConstraint(Sketcher.Constraint("Vertical", 45, 3, 54, 3))
sketch2.addConstraint(Sketcher.Constraint("Vertical", 50, 3, 55, 3))
sketch2.addConstraint(Sketcher.Constraint("Vertical", 54, 3, 0, 2))
sketch2.addConstraint(Sketcher.Constraint("Vertical", 3, 2, 4, 2))
sketch2.addConstraint(Sketcher.Constraint("Equal", 3, 5))
sketch2.addConstraint(Sketcher.Constraint("Equal", 59, 56))
sketch2.addConstraint(Sketcher.Constraint("DistanceX", 57, 1, 57, 2, Q("3 in")))
sketch2.addConstraint(Sketcher.Constraint("Diameter", 8, Q("0.159 in")))
sketch2.addConstraint(Sketcher.Constraint("DistanceY", -1, 1, 8, 3, Q("1.5 in")))
sketch2.addConstraint(Sketcher.Constraint("DistanceX", 56, 2, -1, 1, Q("1.5 in")))
sketch2.addConstraint(Sketcher.Constraint("Radius", 0, Q("0.4225 in")))
sketch2.addConstraint(Sketcher.Constraint("DistanceY", -1, 1, 0, 3, Q("3.65 in")))
sketch2.addConstraint(Sketcher.Constraint("DistanceY", 56, 2, -1, 1, Q("3.85 in")))
sketch2.addConstraint(Sketcher.Constraint("DistanceY", -1, 1, 1, 2, Q("4.2935 in")))
sketch2.addConstraint(Sketcher.Constraint("DistanceX", 2, 2, 2, 1, 16.173789))
sketch2.addConstraint(Sketcher.Constraint("DistanceY", -1, 1, 9, 3, 30.1))
sketch2.addConstraint(Sketcher.Constraint("DistanceY", -1, 1, 10, 3, 22.1))
sketch2.addConstraint(Sketcher.Constraint("DistanceY", -1, 1, 11, 3, 14.1))
sketch2.addConstraint(Sketcher.Constraint("DistanceY", -1, 1, 12, 3, 6.1))
sketch2.addConstraint(Sketcher.Constraint("DistanceY", 13, 3, -1, 1, 1.9))
sketch2.addConstraint(Sketcher.Constraint("DistanceY", 14, 3, -1, 1, 9.9))
sketch2.addConstraint(Sketcher.Constraint("DistanceY", 15, 3, -1, 1, 17.9))
sketch2.addConstraint(Sketcher.Constraint("DistanceX", 16, 3, -1, 1, 8.0))
sketch2.addConstraint(Sketcher.Constraint("DistanceX", 17, 3, -1, 1, 16.0))
sketch2.addConstraint(Sketcher.Constraint("DistanceX", -1, 1, 32, 3, 24.086894))
sketch2.addConstraint(Sketcher.Constraint("DistanceX", -1, 1, 36, 3, 16.086894))
sketch2.setExpression("Constraints[160]", "Params.sketch2_width")
sketch2.setExpression("Constraints[161]", "Params.sketch2_diameter")
pocket1 = body.newObject("PartDesign::Pocket", "Pocket")
pocket1.Profile = sketch2
pocket1.Type = "ThroughAll"
pocket1.Reversed = True

# Sketch on XY plane
sketch3 = body.newObject("Sketcher::SketchObject", "Sketch002")
sketch3.AttachmentSupport = (doc.getObject("XY_Plane"), [""])
sketch3.MapMode = "FlatFace"
add_polygon(sketch3, [(-12.7, 69.85), (-12.7, 57.310848), (12.7, 57.310848), (12.7, 69.85), (82.55, 69.85), (82.55, 146.05), (-82.55, 146.05), (-82.55, 69.85)])  # lines 0-7
sketch3.addConstraint(Sketcher.Constraint("Vertical", 0))
sketch3.addConstraint(Sketcher.Constraint("Horizontal", 1))
sketch3.addConstraint(Sketcher.Constraint("Vertical", 2))
sketch3.addConstraint(Sketcher.Constraint("Horizontal", 3))
sketch3.addConstraint(Sketcher.Constraint("Vertical", 4))
sketch3.addConstraint(Sketcher.Constraint("Horizontal", 5))
sketch3.addConstraint(Sketcher.Constraint("Vertical", 6))
sketch3.addConstraint(Sketcher.Constraint("Horizontal", 7))
sketch3.addConstraint(Sketcher.Constraint("Symmetric", 3, 2, 6, 2, -2))
sketch3.addConstraint(Sketcher.Constraint("Equal", 3, 7))
sketch3.addConstraint(Sketcher.Constraint("DistanceX", 1, 1, 1, 2, Q("1 in")))
sketch3.addConstraint(Sketcher.Constraint("DistanceY", 4, 1, 4, 2, Q("3 in")))
sketch3.addConstraint(Sketcher.Constraint("DistanceX", 5, 2, 5, 1, Q("6.5 in")))
sketch3.addConstraint(Sketcher.Constraint("DistanceY", -1, 1, 2, 2, Q("2.75 in")))
sketch3.addConstraint(Sketcher.Constraint("DistanceY", 0, 2, 0, 1, 12.539152))
sketch3.setExpression("Constraints[18]", "Params.sketch3_width")
sketch3.setExpression("Constraints[19]", "Params.sketch3_height")
sketch3.setExpression("Constraints[20]", "Params.sketch3_width2")
pocket2 = body.newObject("PartDesign::Pocket", "Pocket001")
pocket2.Profile = sketch3
pocket2.Type = "ThroughAll"
pocket2.Reversed = True

# Sketch on XY plane
sketch4 = body.newObject("Sketcher::SketchObject", "Sketch003")
sketch4.AttachmentSupport = (doc.getObject("XY_Plane"), [""])
sketch4.MapMode = "FlatFace"
sketch4.addGeometry(Part.Circle(App.Vector(44.45, -106.299, 0), App.Vector(0, 0, 1), 2.54), False)
sketch4.addGeometry(Part.Circle(App.Vector(69.85, -106.299, 0), App.Vector(0, 0, 1), 2.54), False)
sketch4.addGeometry(Part.Circle(App.Vector(-69.85, -106.299, 0), App.Vector(0, 0, 1), 2.54), False)
sketch4.addGeometry(Part.Circle(App.Vector(-44.45, -106.299, 0), App.Vector(0, 0, 1), 2.54), False)
sketch4.addConstraint(Sketcher.Constraint("Equal", 0, 1))
sketch4.addConstraint(Sketcher.Constraint("Equal", 1, 2))
sketch4.addConstraint(Sketcher.Constraint("Equal", 2, 3))
sketch4.addConstraint(Sketcher.Constraint("Symmetric", 1, 3, 2, 3, -2))
sketch4.addConstraint(Sketcher.Constraint("Symmetric", 0, 3, 3, 3, -2))
sketch4.addConstraint(Sketcher.Constraint("Horizontal", 0, 3, 1, 3))
sketch4.addConstraint(Sketcher.Constraint("Diameter", 0, Q("0.2 in")))
sketch4.addConstraint(Sketcher.Constraint("DistanceX", 0, 3, 1, 3, Q("1 in")))
sketch4.addConstraint(Sketcher.Constraint("DistanceX", 2, 3, 0, 3, Q("4.5 in")))
sketch4.addConstraint(Sketcher.Constraint("DistanceY", 0, 3, -1, 1, Q("4.185 in")))
sketch4.setExpression("Constraints[6]", "Params.sketch4_diameter")
pocket3 = body.newObject("PartDesign::Pocket", "Pocket002")
pocket3.Profile = sketch4
pocket3.Type = "ThroughAll"
pocket3.Reversed = True

# Sketch on XY plane
sketch5 = body.newObject("Sketcher::SketchObject", "Sketch004")
sketch5.AttachmentSupport = (doc.getObject("XY_Plane"), [""])
sketch5.MapMode = "FlatFace"
add_polygon(sketch5, [(82.55, -140.97), (82.55, -146.05), (-82.55, -146.05), (-82.55, -140.97)])  # lines 0-3
sketch5.addConstraint(Sketcher.Constraint("Vertical", 0))
sketch5.addConstraint(Sketcher.Constraint("Horizontal", 1))
sketch5.addConstraint(Sketcher.Constraint("Vertical", 2))
sketch5.addConstraint(Sketcher.Constraint("Horizontal", 3))
sketch5.addConstraint(Sketcher.Constraint("DistanceX", 1, 2, 1, 1, Q("6.5 in")))
sketch5.addConstraint(Sketcher.Constraint("DistanceY", 0, 2, 0, 1, Q("0.2 in")))
sketch5.addConstraint(Sketcher.Constraint("DistanceX", -1, 1, 0, 2, Q("3.25 in")))
sketch5.addConstraint(Sketcher.Constraint("DistanceY", 0, 2, -1, 1, Q("5.75 in")))
sketch5.setExpression("Constraints[8]", "Params.sketch5_width")
sketch5.setExpression("Constraints[9]", "Params.sketch5_height")
pocket4 = body.newObject("PartDesign::Pocket", "Pocket003")
pocket4.Profile = sketch5
pocket4.Type = "ThroughAll"
pocket4.Reversed = True

# Sketch on XY plane
sketch6 = body.newObject("Sketcher::SketchObject", "Sketch005")
sketch6.AttachmentSupport = (doc.getObject("XY_Plane"), [""])
sketch6.MapMode = "FlatFace"
sketch6.AttachmentOffset = App.Placement(App.Vector(0, 0, 0.12 * 25.4), App.Rotation())
sketch6.addGeometry(Part.Circle(App.Vector(0, 57.310848, 0), App.Vector(0, 0, 1), 5.08), False)
sketch6.addConstraint(Sketcher.Constraint("PointOnObject", 0, 3, -2))
sketch6.addConstraint(Sketcher.Constraint("Diameter", 0, Q("0.4 in")))
sketch6.addConstraint(Sketcher.Constraint("DistanceY", -1, 1, 0, 3, 57.310848))
sketch6.setExpression("Constraints[1]", "Params.sketch6_diameter")
pocket5 = body.newObject("PartDesign::Pocket", "Pocket004")
pocket5.Profile = sketch6
pocket5.Type = "UpToFirst"

doc.recompute()
